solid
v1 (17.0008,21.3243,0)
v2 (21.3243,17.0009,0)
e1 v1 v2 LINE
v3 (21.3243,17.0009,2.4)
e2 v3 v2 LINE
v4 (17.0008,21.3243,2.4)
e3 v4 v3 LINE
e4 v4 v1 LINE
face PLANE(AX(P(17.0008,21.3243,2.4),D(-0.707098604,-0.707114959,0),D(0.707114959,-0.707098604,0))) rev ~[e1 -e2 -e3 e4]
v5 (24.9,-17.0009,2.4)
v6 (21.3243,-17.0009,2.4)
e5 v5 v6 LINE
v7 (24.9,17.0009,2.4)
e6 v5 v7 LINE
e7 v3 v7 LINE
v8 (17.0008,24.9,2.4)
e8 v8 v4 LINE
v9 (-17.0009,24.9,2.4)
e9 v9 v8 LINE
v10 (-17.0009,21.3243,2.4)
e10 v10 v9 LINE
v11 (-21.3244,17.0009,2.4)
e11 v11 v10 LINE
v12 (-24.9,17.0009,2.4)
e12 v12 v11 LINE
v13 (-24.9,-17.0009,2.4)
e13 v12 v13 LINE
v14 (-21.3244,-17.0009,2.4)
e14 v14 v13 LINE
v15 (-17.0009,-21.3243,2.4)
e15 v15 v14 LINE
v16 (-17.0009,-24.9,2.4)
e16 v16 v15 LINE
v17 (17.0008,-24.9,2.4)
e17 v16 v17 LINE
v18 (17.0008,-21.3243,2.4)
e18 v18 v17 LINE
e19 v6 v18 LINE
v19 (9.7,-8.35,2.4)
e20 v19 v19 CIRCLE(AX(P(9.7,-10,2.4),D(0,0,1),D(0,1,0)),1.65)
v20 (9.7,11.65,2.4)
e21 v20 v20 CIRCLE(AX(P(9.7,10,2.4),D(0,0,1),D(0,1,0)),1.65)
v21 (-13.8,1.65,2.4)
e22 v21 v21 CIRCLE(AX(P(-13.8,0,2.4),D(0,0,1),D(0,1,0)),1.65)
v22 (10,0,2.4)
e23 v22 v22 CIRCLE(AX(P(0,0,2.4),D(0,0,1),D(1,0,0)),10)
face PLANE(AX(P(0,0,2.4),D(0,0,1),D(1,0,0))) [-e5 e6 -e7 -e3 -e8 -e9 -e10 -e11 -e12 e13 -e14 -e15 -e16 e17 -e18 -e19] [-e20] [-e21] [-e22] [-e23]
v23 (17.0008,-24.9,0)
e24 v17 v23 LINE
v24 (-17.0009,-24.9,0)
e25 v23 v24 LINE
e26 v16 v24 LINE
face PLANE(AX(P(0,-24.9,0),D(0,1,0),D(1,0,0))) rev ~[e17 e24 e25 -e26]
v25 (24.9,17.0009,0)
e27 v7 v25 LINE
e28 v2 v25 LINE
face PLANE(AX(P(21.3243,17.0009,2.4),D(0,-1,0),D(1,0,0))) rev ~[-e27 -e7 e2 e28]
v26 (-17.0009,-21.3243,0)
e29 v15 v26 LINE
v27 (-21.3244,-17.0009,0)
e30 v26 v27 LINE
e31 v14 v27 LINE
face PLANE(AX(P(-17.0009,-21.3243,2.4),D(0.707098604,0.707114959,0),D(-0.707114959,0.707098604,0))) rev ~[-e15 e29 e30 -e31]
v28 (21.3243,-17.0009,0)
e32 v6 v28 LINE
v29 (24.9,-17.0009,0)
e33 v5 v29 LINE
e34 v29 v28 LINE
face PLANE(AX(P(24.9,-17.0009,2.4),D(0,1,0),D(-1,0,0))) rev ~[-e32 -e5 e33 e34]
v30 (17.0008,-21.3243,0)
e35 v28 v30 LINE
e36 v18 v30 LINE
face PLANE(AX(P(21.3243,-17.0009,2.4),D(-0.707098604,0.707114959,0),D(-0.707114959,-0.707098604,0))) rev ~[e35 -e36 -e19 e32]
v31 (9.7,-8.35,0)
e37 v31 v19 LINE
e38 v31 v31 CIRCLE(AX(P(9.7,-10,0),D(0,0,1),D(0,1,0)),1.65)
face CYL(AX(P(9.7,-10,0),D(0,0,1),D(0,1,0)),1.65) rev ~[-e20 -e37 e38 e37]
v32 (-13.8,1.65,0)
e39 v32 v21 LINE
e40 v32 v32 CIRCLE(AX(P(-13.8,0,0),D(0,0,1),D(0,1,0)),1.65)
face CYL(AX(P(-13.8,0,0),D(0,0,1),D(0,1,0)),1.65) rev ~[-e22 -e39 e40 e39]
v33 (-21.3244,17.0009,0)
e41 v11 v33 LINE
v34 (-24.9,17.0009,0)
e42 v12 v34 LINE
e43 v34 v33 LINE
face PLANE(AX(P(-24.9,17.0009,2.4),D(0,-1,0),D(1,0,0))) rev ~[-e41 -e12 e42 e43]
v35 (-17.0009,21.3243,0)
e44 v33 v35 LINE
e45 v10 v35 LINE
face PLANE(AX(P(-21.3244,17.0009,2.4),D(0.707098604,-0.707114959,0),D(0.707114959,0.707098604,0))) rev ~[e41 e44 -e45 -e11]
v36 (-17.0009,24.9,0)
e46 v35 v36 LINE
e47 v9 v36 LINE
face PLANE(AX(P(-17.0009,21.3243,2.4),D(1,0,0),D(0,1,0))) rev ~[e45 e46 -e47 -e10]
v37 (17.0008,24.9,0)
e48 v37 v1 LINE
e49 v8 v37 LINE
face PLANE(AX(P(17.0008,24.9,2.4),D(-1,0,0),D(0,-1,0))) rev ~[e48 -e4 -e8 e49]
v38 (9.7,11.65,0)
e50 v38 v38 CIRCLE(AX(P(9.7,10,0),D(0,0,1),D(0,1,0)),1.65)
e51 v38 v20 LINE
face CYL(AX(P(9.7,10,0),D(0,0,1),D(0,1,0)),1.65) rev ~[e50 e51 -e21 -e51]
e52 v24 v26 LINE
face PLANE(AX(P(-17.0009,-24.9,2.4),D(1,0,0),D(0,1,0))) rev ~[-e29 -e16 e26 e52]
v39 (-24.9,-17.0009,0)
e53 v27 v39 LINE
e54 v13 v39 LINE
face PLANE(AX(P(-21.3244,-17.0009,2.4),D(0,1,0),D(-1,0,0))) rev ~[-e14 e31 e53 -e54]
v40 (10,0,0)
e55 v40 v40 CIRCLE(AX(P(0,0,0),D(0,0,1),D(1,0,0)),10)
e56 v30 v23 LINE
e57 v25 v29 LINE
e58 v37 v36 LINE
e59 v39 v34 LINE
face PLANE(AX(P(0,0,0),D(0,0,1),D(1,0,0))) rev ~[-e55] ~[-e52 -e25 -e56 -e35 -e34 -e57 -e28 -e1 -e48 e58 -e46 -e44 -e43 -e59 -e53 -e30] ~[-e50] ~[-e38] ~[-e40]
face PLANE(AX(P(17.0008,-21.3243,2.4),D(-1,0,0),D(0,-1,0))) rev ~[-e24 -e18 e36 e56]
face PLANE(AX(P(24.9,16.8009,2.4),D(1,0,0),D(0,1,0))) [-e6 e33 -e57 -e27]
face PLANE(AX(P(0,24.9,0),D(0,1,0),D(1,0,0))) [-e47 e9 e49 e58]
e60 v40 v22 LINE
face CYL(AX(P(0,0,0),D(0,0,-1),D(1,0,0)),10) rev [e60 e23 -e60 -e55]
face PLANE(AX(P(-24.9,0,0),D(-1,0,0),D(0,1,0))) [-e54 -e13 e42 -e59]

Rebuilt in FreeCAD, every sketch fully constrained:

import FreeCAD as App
import Part
import Sketcher

V = App.Vector
Q = App.Units.Quantity

doc = App.newDocument("Part")
body = doc.addObject("PartDesign::Body", "Body")

# Sketch on XY plane
sketch1 = body.newObject("Sketcher::SketchObject", "Sketch")
sketch1.AttachmentSupport = (doc.getObject("XY_Plane"), [""])
sketch1.MapMode = "FlatFace"
sketch1.addGeometry([
    Part.LineSegment(V(16.8, 24.9, 0), V(-16.8, 24.9, 0)),  # 0
    Part.LineSegment(V(-16.8, 24.9, 0), V(-16.8, 21.2, 0)),  # 1
    Part.LineSegment(V(-16.8, 21.2, 0), V(-21.2, 16.8, 0)),  # 2
    Part.LineSegment(V(-21.2, 16.8, 0), V(-24.9, 16.8, 0)),  # 3
    Part.LineSegment(V(-24.9, 16.8, 0), V(-24.9, -16.8, 0)),  # 4
    Part.LineSegment(V(-24.9, -16.8, 0), V(-21.2, -16.8, 0)),  # 5
    Part.LineSegment(V(-21.2, -16.8, 0), V(-16.8, -21.2, 0)),  # 6
    Part.LineSegment(V(-16.8, -21.2, 0), V(-16.8, -24.9, 0)),  # 7
    Part.LineSegment(V(-16.8, -24.9, 0), V(16.8, -24.9, 0)),  # 8
    Part.LineSegment(V(16.8, -24.9, 0), V(16.8, -21.2, 0)),  # 9
    Part.LineSegment(V(16.8, -21.2, 0), V(21.2, -16.8, 0)),  # 10
    Part.LineSegment(V(21.2, -16.8, 0), V(24.9, -16.8, 0)),  # 11
    Part.LineSegment(V(24.9, -16.8, 0), V(24.9, 16.8, 0)),  # 12
    Part.LineSegment(V(24.9, 16.8, 0), V(21.2, 16.8, 0)),  # 13
    Part.LineSegment(V(21.2, 16.8, 0), V(16.8, 21.2, 0)),  # 14
    Part.LineSegment(V(16.8, 21.2, 0), V(16.8, 24.9, 0)),  # 15
    Part.Circle(V(0, 0, 0), V(0, 0, 1), 10),  # 16
], False)
sketch1.addConstraint([
    Sketcher.Constraint("Coincident", 0, 2, 1, 1),
    Sketcher.Constraint("Coincident", 1, 2, 2, 1),
    Sketcher.Constraint("Coincident", 2, 2, 3, 1),
    Sketcher.Constraint("Coincident", 3, 2, 4, 1),
    Sketcher.Constraint("Coincident", 4, 2, 5, 1),
    Sketcher.Constraint("Coincident", 5, 2, 6, 1),
    Sketcher.Constraint("Coincident", 6, 2, 7, 1),
    Sketcher.Constraint("Coincident", 7, 2, 8, 1),
    Sketcher.Constraint("Coincident", 8, 2, 9, 1),
    Sketcher.Constraint("Coincident", 9, 2, 10, 1),
    Sketcher.Constraint("Coincident", 10, 2, 11, 1),
    Sketcher.Constraint("Coincident", 11, 2, 12, 1),
    Sketcher.Constraint("Coincident", 12, 2, 13, 1),
    Sketcher.Constraint("Coincident", 13, 2, 14, 1),
    Sketcher.Constraint("Coincident", 14, 2, 15, 1),
    Sketcher.Constraint("Coincident", 15, 2, 0, 1),
    Sketcher.Constraint("Horizontal", 0),
    Sketcher.Constraint("Vertical", 1),
    Sketcher.Constraint("Horizontal", 3),
    Sketcher.Constraint("Vertical", 4),
    Sketcher.Constraint("Horizontal", 5),
    Sketcher.Constraint("Vertical", 7),
    Sketcher.Constraint("Horizontal", 8),
    Sketcher.Constraint("Vertical", 9),
    Sketcher.Constraint("Horizontal", 11),
    Sketcher.Constraint("Vertical", 12),
    Sketcher.Constraint("Horizontal", 13),
    Sketcher.Constraint("Vertical", 15),
    Sketcher.Constraint("Coincident", 16, 3, -1, 1),
    Sketcher.Constraint("Symmetric", 0, 2, 8, 2, -1, 1),
    Sketcher.Constraint("Symmetric", 2, 2, 10, 2, -1, 1),
    Sketcher.Constraint("Symmetric", 4, 2, 12, 2, -1, 1),
    Sketcher.Constraint("Symmetric", 6, 2, 14, 2, -1, 1),
    Sketcher.Constraint("Symmetric", 6, 2, 9, 2, -2),
    Sketcher.Constraint("Symmetric", 5, 2, 10, 2, -2),
    Sketcher.Constraint("Perpendicular", 2, 6),
    Sketcher.Constraint("Perpendicular", 6, 10),
    Sketcher.Constraint("Perpendicular", 10, 14),
    Sketcher.Constraint("Equal", 13, 1),
    Sketcher.Constraint("Equal", 8, 4),
    Sketcher.Constraint("Diameter", 16, Q("20 mm")),
    Sketcher.Constraint("DistanceY", -1, 1, 0, 2, Q("24.9 mm")),
    Sketcher.Constraint("Distance", 2, Q("6.28 mm")),
    Sketcher.Constraint("DistanceX", 0, 2, 0, 1, Q("33.6018 mm")),
])
pad1 = body.newObject("PartDesign::Pad", "Pad")
pad1.Profile = sketch1
pad1.Length = 2.4

# Sketch on XY plane
sketch2 = body.newObject("Sketcher::SketchObject", "Sketch001")
sketch2.AttachmentSupport = (doc.getObject("XY_Plane"), [""])
sketch2.MapMode = "FlatFace"
sketch2.addGeometry([
    Part.Circle(V(9.7, 10, 0), V(0, 0, 1), 1.6),
    Part.Circle(V(-13.8, 0, 0), V(0, 0, 1), 1.6),
    Part.Circle(V(9.7, -10, 0), V(0, 0, 1), 1.6),
], False)
sketch2.addConstraint([
    Sketcher.Constraint("Equal", 0, 1),
    Sketcher.Constraint("Equal", 1, 2),
    Sketcher.Constraint("Symmetric", 0, 3, 2, 3, -1),
    Sketcher.Constraint("PointOnObject", 1, 3, -1),
    Sketcher.Constraint("Diameter", 0, Q("3.3 mm")),
    Sketcher.Constraint("DistanceY", -1, 1, 0, 3, Q("10 mm")),
    Sketcher.Constraint("DistanceX", -1, 1, 0, 3, Q("9.7 mm")),
    Sketcher.Constraint("DistanceX", 1, 3, -1, 1, Q("13.8 mm")),
])
doc.recompute()
hole = body.newObject("PartDesign::Hole", "Hole")
hole.Profile = sketch2
hole.ThreadType = "None"
hole.Diameter = 3.3
hole.DepthType = "Dimension"
hole.Depth = 12
hole.DrillPoint = "Angled"
hole.DrillPointAngle = 118
hole.Reversed = True

# Sketch on XY plane
sketch3 = body.newObject("Sketcher::SketchObject", "Sketch002")
sketch3.AttachmentSupport = (doc.getObject("XY_Plane"), [""])
sketch3.MapMode = "FlatFace"
sketch3.AttachmentOffset = App.Placement(V(0, 0, 2.4), App.Rotation())
sketch3.addGeometry([
    Part.LineSegment(V(-17, -24.9, 0), V(-16.8, -24.9, 0)),  # 0
    Part.LineSegment(V(-16.8, -24.9, 0), V(-16.8, -21.24, 0)),  # 1
    Part.LineSegment(V(-16.8, -21.24, 0), V(-21.24, -16.8, 0)),  # 2
    Part.LineSegment(V(-21.24, -16.8, 0), V(-24.9, -16.8, 0)),  # 3
    Part.LineSegment(V(-24.9, -16.8, 0), V(-24.9, -17, 0)),  # 4
    Part.LineSegment(V(-24.9, -17, 0), V(-21.32, -17, 0)),  # 5
    Part.LineSegment(V(-21.32, -17, 0), V(-17, -21.32, 0)),  # 6
    Part.LineSegment(V(-17, -21.32, 0), V(-17, -24.9, 0)),  # 7
    Part.LineSegment(V(24.9, -17, 0), V(24.9, -16.8, 0)),  # 8
    Part.LineSegment(V(24.9, -16.8, 0), V(21.24, -16.8, 0)),  # 9
    Part.LineSegment(V(21.24, -16.8, 0), V(16.8, -21.24, 0)),  # 10
    Part.LineSegment(V(16.8, -21.24, 0), V(16.8, -24.9, 0)),  # 11
    Part.LineSegment(V(16.8, -24.9, 0), V(17, -24.9, 0)),  # 12
    Part.LineSegment(V(17, -24.9, 0), V(17, -21.32, 0)),  # 13
    Part.LineSegment(V(17, -21.32, 0), V(21.32, -17, 0)),  # 14
    Part.LineSegment(V(21.32, -17, 0), V(24.9, -17, 0)),  # 15
    Part.LineSegment(V(16.8, 24.9, 0), V(16.8, 21.24, 0)),  # 16
    Part.LineSegment(V(16.8, 21.24, 0), V(21.24, 16.8, 0)),  # 17
    Part.LineSegment(V(21.24, 16.8, 0), V(24.9, 16.8, 0)),  # 18
    Part.LineSegment(V(24.9, 16.8, 0), V(24.9, 17, 0)),  # 19
    Part.LineSegment(V(24.9, 17, 0), V(21.32, 17, 0)),  # 20
    Part.LineSegment(V(21.32, 17, 0), V(17, 21.32, 0)),  # 21
    Part.LineSegment(V(17, 21.32, 0), V(17, 24.9, 0)),  # 22
    Part.LineSegment(V(17, 24.9, 0), V(16.8, 24.9, 0)),  # 23
    Part.LineSegment(V(-16.8, 21.24, 0), V(-16.8, 24.9, 0)),  # 24
    Part.LineSegment(V(-16.8, 24.9, 0), V(-17, 24.9, 0)),  # 25
    Part.LineSegment(V(-17, 24.9, 0), V(-17, 21.32, 0)),  # 26
    Part.LineSegment(V(-17, 21.32, 0), V(-21.32, 17, 0)),  # 27
    Part.LineSegment(V(-21.32, 17, 0), V(-24.9, 17, 0)),  # 28
    Part.LineSegment(V(-24.9, 17, 0), V(-24.9, 16.8, 0)),  # 29
    Part.LineSegment(V(-24.9, 16.8, 0), V(-21.24, 16.8, 0)),  # 30
    Part.LineSegment(V(-21.24, 16.8, 0), V(-16.8, 21.24, 0)),  # 31
], False)
sketch3.addConstraint([
    Sketcher.Constraint("Coincident", 0, 2, 1, 1),
    Sketcher.Constraint("Coincident", 1, 2, 2, 1),
    Sketcher.Constraint("Coincident", 2, 2, 3, 1),
    Sketcher.Constraint("Coincident", 3, 2, 4, 1),
    Sketcher.Constraint("Coincident", 4, 2, 5, 1),
    Sketcher.Constraint("Coincident", 5, 2, 6, 1),
    Sketcher.Constraint("Coincident", 6, 2, 7, 1),
    Sketcher.Constraint("Coincident", 7, 2, 0, 1),
    Sketcher.Constraint("Coincident", 8, 2, 9, 1),
    Sketcher.Constraint("Coincident", 9, 2, 10, 1),
    Sketcher.Constraint("Coincident", 10, 2, 11, 1),
    Sketcher.Constraint("Coincident", 11, 2, 12, 1),
    Sketcher.Constraint("Coincident", 12, 2, 13, 1),
    Sketcher.Constraint("Coincident", 13, 2, 14, 1),
    Sketcher.Constraint("Coincident", 14, 2, 15, 1),
    Sketcher.Constraint("Coincident", 15, 2, 8, 1),
    Sketcher.Constraint("Coincident", 16, 2, 17, 1),
    Sketcher.Constraint("Coincident", 17, 2, 18, 1),
    Sketcher.Constraint("Coincident", 18, 2, 19, 1),
    Sketcher.Constraint("Coincident", 19, 2, 20, 1),
    Sketcher.Constraint("Coincident", 20, 2, 21, 1),
    Sketcher.Constraint("Coincident", 21, 2, 22, 1),
    Sketcher.Constraint("Coincident", 22, 2, 23, 1),
    Sketcher.Constraint("Coincident", 23, 2, 16, 1),
    Sketcher.Constraint("Coincident", 24, 2, 25, 1),
    Sketcher.Constraint("Coincident", 25, 2, 26, 1),
    Sketcher.Constraint("Coincident", 26, 2, 27, 1),
    Sketcher.Constraint("Coincident", 27, 2, 28, 1),
    Sketcher.Constraint("Coincident", 28, 2, 29, 1),
    Sketcher.Constraint("Coincident", 29, 2, 30, 1),
    Sketcher.Constraint("Coincident", 30, 2, 31, 1),
    Sketcher.Constraint("Coincident", 31, 2, 24, 1),
    Sketcher.Constraint("Horizontal", 0),
    Sketcher.Constraint("Vertical", 1),
    Sketcher.Constraint("Horizontal", 3),
    Sketcher.Constraint("Vertical", 4),
    Sketcher.Constraint("Horizontal", 5),
    Sketcher.Constraint("Vertical", 7),
    Sketcher.Constraint("Vertical", 8),
    Sketcher.Constraint("Horizontal", 9),
    Sketcher.Constraint("Vertical", 11),
    Sketcher.Constraint("Horizontal", 12),
    Sketcher.Constraint("Vertical", 13),
    Sketcher.Constraint("Horizontal", 15),
    Sketcher.Constraint("Vertical", 16),
    Sketcher.Constraint("Horizontal", 18),
    Sketcher.Constraint("Vertical", 19),
    Sketcher.Constraint("Horizontal", 20),
    Sketcher.Constraint("Vertical", 22),
    Sketcher.Constraint("Horizontal", 23),
    Sketcher.Constraint("Vertical", 24),
    Sketcher.Constraint("Horizontal", 25),
    Sketcher.Constraint("Vertical", 26),
    Sketcher.Constraint("Horizontal", 28),
    Sketcher.Constraint("Vertical", 29),
    Sketcher.Constraint("Horizontal", 30),
    Sketcher.Constraint("Symmetric", 1, 2, 16, 2, -1, 1),
    Sketcher.Constraint("Symmetric", 2, 2, 17, 2, -1, 1),
    Sketcher.Constraint("Symmetric", 4, 2, 19, 2, -1, 1),
    Sketcher.Constraint("Symmetric", 6, 2, 21, 2, -1, 1),
    Sketcher.Constraint("Symmetric", 11, 2, 24, 2, -1, 1),
    Sketcher.Constraint("Symmetric", 13, 2, 26, 2, -1, 1),
    Sketcher.Constraint("Symmetric", 14, 2, 27, 2, -1, 1),
    Sketcher.Constraint("Symmetric", 8, 2, 29, 2, -1, 1),
    Sketcher.Constraint("Symmetric", 3, 2, 8, 2, -2),
    Sketcher.Constraint("Symmetric", 1, 2, 10, 2, -2),
    Sketcher.Constraint("Symmetric", 7, 2, 12, 2, -2),
    Sketcher.Constraint("Symmetric", 5, 2, 14, 2, -2),
    Sketcher.Constraint("Parallel", 2, 6),
    Sketcher.Constraint("Perpendicular", 6, 10),
    Sketcher.Constraint("Parallel", 10, 14),
    Sketcher.Constraint("Parallel", 17, 21),
    Sketcher.Constraint("Parallel", 27, 31),
    Sketcher.Constraint("Horizontal", 6, 2, 13, 2),
    Sketcher.Constraint("Horizontal", 23, 2, 24, 2),
    Sketcher.Constraint("Horizontal", 16, 2, 31, 2),
    Sketcher.Constraint("Equal", 30, 1),
    Sketcher.Constraint("Equal", 25, 4),
    Sketcher.Constraint("DistanceX", 0, 1, 0, 2, Q("0.2 mm")),
    Sketcher.Constraint("DistanceY", 0, 2, -1, 1, Q("24.9 mm")),
    Sketcher.Constraint("DistanceX", 3, 2, -1, 1, Q("24.9 mm")),
    Sketcher.Constraint("Distance", 2, Q("6.28 mm")),
    Sketcher.Constraint("DistanceX", 3, 2, 3, 1, Q("3.6585 mm")),
    Sketcher.Constraint("DistanceX", 5, 1, 5, 2, Q("3.5756 mm")),
])
pad2 = body.newObject("PartDesign::Pad", "Pad001")
pad2.Profile = sketch3
pad2.Length = 2.4
pad2.Reversed = True

doc.recompute()
